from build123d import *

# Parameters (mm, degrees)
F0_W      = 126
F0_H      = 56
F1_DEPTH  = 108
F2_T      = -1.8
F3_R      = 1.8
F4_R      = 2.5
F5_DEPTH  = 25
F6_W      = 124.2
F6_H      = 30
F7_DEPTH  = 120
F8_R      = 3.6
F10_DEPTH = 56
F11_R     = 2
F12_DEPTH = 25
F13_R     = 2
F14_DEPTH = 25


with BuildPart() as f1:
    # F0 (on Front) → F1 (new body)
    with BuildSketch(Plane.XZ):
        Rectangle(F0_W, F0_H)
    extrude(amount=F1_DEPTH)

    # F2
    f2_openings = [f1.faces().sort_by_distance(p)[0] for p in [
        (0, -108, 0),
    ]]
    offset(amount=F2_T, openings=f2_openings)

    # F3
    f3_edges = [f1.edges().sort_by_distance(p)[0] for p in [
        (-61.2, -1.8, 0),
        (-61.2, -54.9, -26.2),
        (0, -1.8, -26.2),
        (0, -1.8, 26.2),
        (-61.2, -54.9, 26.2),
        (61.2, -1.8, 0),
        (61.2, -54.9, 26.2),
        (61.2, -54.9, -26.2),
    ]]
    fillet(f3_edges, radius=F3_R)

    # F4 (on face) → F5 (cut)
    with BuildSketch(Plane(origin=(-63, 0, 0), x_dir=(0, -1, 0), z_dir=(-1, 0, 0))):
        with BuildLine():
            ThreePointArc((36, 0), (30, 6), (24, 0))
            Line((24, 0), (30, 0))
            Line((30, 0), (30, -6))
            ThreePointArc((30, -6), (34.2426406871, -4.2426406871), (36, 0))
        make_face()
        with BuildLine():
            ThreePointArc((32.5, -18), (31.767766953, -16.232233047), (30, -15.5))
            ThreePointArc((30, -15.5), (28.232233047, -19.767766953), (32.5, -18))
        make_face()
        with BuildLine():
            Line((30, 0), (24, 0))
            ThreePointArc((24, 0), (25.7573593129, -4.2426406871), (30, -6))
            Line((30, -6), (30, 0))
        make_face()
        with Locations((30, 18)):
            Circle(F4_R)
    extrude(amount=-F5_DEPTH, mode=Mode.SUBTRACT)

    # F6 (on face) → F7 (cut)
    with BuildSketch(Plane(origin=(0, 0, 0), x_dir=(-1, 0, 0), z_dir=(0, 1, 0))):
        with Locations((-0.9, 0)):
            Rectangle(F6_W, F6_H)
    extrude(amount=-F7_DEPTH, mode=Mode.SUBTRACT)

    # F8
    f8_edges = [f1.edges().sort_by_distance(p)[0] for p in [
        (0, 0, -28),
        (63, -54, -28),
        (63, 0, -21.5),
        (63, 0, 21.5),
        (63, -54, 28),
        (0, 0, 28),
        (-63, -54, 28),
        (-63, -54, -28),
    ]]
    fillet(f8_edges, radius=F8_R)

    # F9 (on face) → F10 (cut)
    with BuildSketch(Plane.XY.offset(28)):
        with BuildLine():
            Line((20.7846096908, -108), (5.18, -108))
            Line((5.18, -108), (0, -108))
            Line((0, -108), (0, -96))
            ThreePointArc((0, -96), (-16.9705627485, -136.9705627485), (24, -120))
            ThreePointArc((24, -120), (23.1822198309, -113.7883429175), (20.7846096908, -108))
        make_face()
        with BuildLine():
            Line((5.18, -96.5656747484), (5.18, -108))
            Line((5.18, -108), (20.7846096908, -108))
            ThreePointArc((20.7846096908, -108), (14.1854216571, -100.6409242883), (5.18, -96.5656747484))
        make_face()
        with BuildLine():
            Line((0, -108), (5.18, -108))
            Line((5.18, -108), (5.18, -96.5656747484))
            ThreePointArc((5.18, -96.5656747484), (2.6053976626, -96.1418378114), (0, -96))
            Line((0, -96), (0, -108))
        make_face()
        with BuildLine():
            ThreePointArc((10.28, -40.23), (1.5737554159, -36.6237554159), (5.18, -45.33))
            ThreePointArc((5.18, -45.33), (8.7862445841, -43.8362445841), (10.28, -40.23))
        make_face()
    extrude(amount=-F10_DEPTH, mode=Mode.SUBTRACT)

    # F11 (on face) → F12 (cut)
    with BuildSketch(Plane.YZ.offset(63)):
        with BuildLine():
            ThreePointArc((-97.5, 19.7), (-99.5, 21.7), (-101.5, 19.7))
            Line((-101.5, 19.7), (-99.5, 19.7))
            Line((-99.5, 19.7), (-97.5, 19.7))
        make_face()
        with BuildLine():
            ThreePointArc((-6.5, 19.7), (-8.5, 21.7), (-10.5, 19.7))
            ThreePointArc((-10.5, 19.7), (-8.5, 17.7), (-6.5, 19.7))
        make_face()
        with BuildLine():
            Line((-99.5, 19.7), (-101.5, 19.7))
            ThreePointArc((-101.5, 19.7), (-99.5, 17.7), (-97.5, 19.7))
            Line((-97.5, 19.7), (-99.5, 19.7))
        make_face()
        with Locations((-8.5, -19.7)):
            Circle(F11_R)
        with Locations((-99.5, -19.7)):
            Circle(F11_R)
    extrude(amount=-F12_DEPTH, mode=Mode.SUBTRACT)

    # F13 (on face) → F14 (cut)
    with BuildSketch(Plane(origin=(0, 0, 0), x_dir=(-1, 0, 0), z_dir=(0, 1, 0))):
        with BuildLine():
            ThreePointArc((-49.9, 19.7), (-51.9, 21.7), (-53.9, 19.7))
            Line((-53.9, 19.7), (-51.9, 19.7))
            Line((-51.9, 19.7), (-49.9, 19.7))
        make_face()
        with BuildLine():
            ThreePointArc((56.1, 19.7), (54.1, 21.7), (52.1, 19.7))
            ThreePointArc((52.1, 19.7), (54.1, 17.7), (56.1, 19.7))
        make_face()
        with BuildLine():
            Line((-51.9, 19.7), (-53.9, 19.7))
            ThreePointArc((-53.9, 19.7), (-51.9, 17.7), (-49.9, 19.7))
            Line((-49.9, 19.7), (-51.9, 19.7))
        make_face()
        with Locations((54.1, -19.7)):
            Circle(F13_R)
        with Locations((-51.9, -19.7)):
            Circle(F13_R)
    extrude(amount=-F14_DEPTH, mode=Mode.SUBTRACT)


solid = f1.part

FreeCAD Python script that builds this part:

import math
import FreeCAD as App
import Part
import Sketcher
from FreeCAD import Vector


def edges_at(feature, points):
    """Names of the edges that pass closest to the given points."""
    edges = feature.Shape.Edges
    near = lambda p: min(range(len(edges)), key=lambda i: edges[i].distToShape(Part.Vertex(*p))[0])
    return sorted({f"Edge{near(p) + 1}" for p in points})


def faces_at(feature, points):
    """Names of the faces that lie closest to the given points."""
    faces = feature.Shape.Faces
    near = lambda p: min(range(len(faces)), key=lambda i: faces[i].distToShape(Part.Vertex(*p))[0])
    return sorted({f"Face{near(p) + 1}" for p in points})

doc = App.newDocument("Part")
body = doc.addObject("PartDesign::Body", "Body")

# Sketch on XZ plane
sketch1 = body.newObject("Sketcher::SketchObject", "Sketch")
sketch1.AttachmentSupport = (doc.getObject("XZ_Plane"), [""])
sketch1.MapMode = "FlatFace"
sketch1.addGeometry(Part.LineSegment(Vector(-63, 28, 0), Vector(-63, -28, 0)), False)
sketch1.addGeometry(Part.LineSegment(Vector(-63, -28, 0), Vector(63, -28, 0)), False)
sketch1.addGeometry(Part.LineSegment(Vector(63, -28, 0), Vector(63, 28, 0)), False)
sketch1.addGeometry(Part.LineSegment(Vector(63, 28, 0), Vector(-63, 28, 0)), False)
sketch1.addConstraint(Sketcher.Constraint("Coincident", 0, 2, 1, 1))
sketch1.addConstraint(Sketcher.Constraint("Coincident", 1, 2, 2, 1))
sketch1.addConstraint(Sketcher.Constraint("Coincident", 2, 2, 3, 1))
sketch1.addConstraint(Sketcher.Constraint("Coincident", 3, 2, 0, 1))
sketch1.addConstraint(Sketcher.Constraint("Vertical", 0))
sketch1.addConstraint(Sketcher.Constraint("Horizontal", 1))
sketch1.addConstraint(Sketcher.Constraint("Vertical", 2))
sketch1.addConstraint(Sketcher.Constraint("Horizontal", 3))
sketch1.addConstraint(Sketcher.Constraint("Symmetric", 0, 2, 2, 2, -1, 1))
sketch1.addConstraint(Sketcher.Constraint("DistanceX", 1, 1, 1, 2, 126.0))
sketch1.addConstraint(Sketcher.Constraint("DistanceY", 0, 2, 0, 1, 56.0))
pad1 = body.newObject("PartDesign::Pad", "Pad")
pad1.Profile = sketch1
pad1.Length = 108
doc.recompute()

thickness = body.newObject("PartDesign::Thickness", "Thickness")
thickness.Base = (pad1, faces_at(pad1, [(0, -108, 0)]))
thickness.Value = 1.8
thickness.Reversed = True
thickness.Join = "Arc"
doc.recompute()

fillet = body.newObject("PartDesign::Fillet", "Fillet")
fillet.Base = (thickness, edges_at(thickness, [
    (-61.2, -1.8, 0),
    (-61.2, -54.9, -26.2),
    (0, -1.8, -26.2),
    (0, -1.8, 26.2),
    (-61.2, -54.9, 26.2),
    (61.2, -1.8, 0),
    (61.2, -54.9, 26.2),
    (61.2, -54.9, -26.2),
]))
fillet.Radius = 1.8

# Sketch on YZ plane
sketch2 = body.newObject("Sketcher::SketchObject", "Sketch001")
sketch2.AttachmentSupport = (doc.getObject("YZ_Plane"), [""])
sketch2.MapMode = "FlatFace"
sketch2.AttachmentOffset = App.Placement(Vector(0, 0, -63), App.Rotation())
sketch2.addGeometry(Part.ArcOfCircle(Part.Circle(Vector(-30, 0, 0), Vector(0, 0, 1), 6), math.radians(0), math.radians(180)), False)
sketch2.addGeometry(Part.ArcOfCircle(Part.Circle(Vector(-30, 0, 0), Vector(0, 0, 1), 6), math.radians(-90), math.radians(0)), False)
sketch2.addGeometry(Part.ArcOfCircle(Part.Circle(Vector(-30, 0, 0), Vector(0, 0, 1), 6), math.radians(180), math.radians(270)), False)
sketch2.addGeometry(Part.ArcOfCircle(Part.Circle(Vector(-30, -18, 0), Vector(0, 0, 1), 2.5), math.radians(90), math.radians(180)), False)
sketch2.addGeometry(Part.ArcOfCircle(Part.Circle(Vector(-30, -18, 0), Vector(0, 0, 1), 2.5), math.radians(180), math.radians(450)), False)
sketch2.addGeometry(Part.Circle(Vector(-30, 18, 0), Vector(0, 0, 1), 2.5), False)
sketch2.addConstraint(Sketcher.Constraint("Tangent", 0, 1, 1, 2))
sketch2.addConstraint(Sketcher.Constraint("Tangent", 1, 1, 2, 2))
sketch2.addConstraint(Sketcher.Constraint("Tangent", 2, 1, 0, 2))
sketch2.addConstraint(Sketcher.Constraint("Tangent", 3, 1, 4, 2))
sketch2.addConstraint(Sketcher.Constraint("Coincident", 4, 1, 3, 2))
sketch2.addConstraint(Sketcher.Constraint("Equal", 4, 5))
sketch2.addConstraint(Sketcher.Constraint("Symmetric", 3, 3, 5, 3, -1))
sketch2.addConstraint(Sketcher.Constraint("PointOnObject", 0, 3, -1))
sketch2.addConstraint(Sketcher.Constraint("PointOnObject", 0, 1, -1))
sketch2.addConstraint(Sketcher.Constraint("PointOnObject", 2, 1, -1))
sketch2.addConstraint(Sketcher.Constraint("Horizontal", 3, 3, 4, 1))
sketch2.addConstraint(Sketcher.Constraint("Vertical", 2, 3, 3, 3))
sketch2.addConstraint(Sketcher.Constraint("Vertical", 5, 3, 1, 1))
sketch2.addConstraint(Sketcher.Constraint("Vertical", 1, 1, 3, 1))
sketch2.addConstraint(Sketcher.Constraint("Diameter", 5, 5.0))
sketch2.addConstraint(Sketcher.Constraint("Radius", 0, 6.0))
sketch2.addConstraint(Sketcher.Constraint("DistanceX", 0, 3, -1, 1, 30.0))
sketch2.addConstraint(Sketcher.Constraint("DistanceY", 3, 3, -1, 1, 18.0))
pocket1 = body.newObject("PartDesign::Pocket", "Pocket")
pocket1.Profile = sketch2
pocket1.Length = 25
pocket1.Reversed = True

# Sketch on XZ plane
sketch3 = body.newObject("Sketcher::SketchObject", "Sketch002")
sketch3.AttachmentSupport = (doc.getObject("XZ_Plane"), [""])
sketch3.MapMode = "FlatFace"
sketch3.addGeometry(Part.LineSegment(Vector(63, 15, 0), Vector(63, -15, 0)), False)
sketch3.addGeometry(Part.LineSegment(Vector(63, -15, 0), Vector(-61, -15, 0)), False)
sketch3.addGeometry(Part.LineSegment(Vector(-61, -15, 0), Vector(-61, 15, 0)), False)
sketch3.addGeometry(Part.LineSegment(Vector(-61, 15, 0), Vector(63, 15, 0)), False)
sketch3.addConstraint(Sketcher.Constraint("Coincident", 0, 2, 1, 1))
sketch3.addConstraint(Sketcher.Constraint("Coincident", 1, 2, 2, 1))
sketch3.addConstraint(Sketcher.Constraint("Coincident", 2, 2, 3, 1))
sketch3.addConstraint(Sketcher.Constraint("Coincident", 3, 2, 0, 1))
sketch3.addConstraint(Sketcher.Constraint("Vertical", 0))
sketch3.addConstraint(Sketcher.Constraint("Horizontal", 1))
sketch3.addConstraint(Sketcher.Constraint("Vertical", 2))
sketch3.addConstraint(Sketcher.Constraint("Horizontal", 3))
sketch3.addConstraint(Sketcher.Constraint("DistanceY", 0, 2, 0, 1, 30.0))
sketch3.addConstraint(Sketcher.Constraint("DistanceX", 1, 2, 1, 1, 124.2))
sketch3.addConstraint(Sketcher.Constraint("DistanceX", -1, 1, 0, 2, 63.0))
sketch3.addConstraint(Sketcher.Constraint("DistanceY", 0, 2, -1, 1, 15.0))
pocket2 = body.newObject("PartDesign::Pocket", "Pocket001")
pocket2.Profile = sketch3
pocket2.Length = 120
pocket2.Reversed = True
doc.recompute()

fillet2 = body.newObject("PartDesign::Fillet", "Fillet001")
fillet2.Base = (pocket2, edges_at(pocket2, [
    (0, 0, -28),
    (63, -54, -28),
    (63, 0, -21.5),
    (63, 0, 21.5),
    (63, -54, 28),
    (0, 0, 28),
    (-63, -54, 28),
    (-63, -54, -28),
]))
fillet2.Radius = 3.6

# Sketch on XY plane
sketch4 = body.newObject("Sketcher::SketchObject", "Sketch003")
sketch4.AttachmentSupport = (doc.getObject("XY_Plane"), [""])
sketch4.MapMode = "FlatFace"
sketch4.AttachmentOffset = App.Placement(Vector(0, 0, 28), App.Rotation())
sketch4.addGeometry(Part.ArcOfCircle(Part.Circle(Vector(0, -120, 0), Vector(0, 0, 1), 24), math.radians(90), math.radians(360)), False)
sketch4.addGeometry(Part.ArcOfCircle(Part.Circle(Vector(0, -120, 0), Vector(0, 0, 1), 24), math.radians(0), math.radians(30)), False)
sketch4.addGeometry(Part.ArcOfCircle(Part.Circle(Vector(0, -120, 0), Vector(0, 0, 1), 24), math.radians(30), math.radians(78)), False)
sketch4.addGeometry(Part.ArcOfCircle(Part.Circle(Vector(0, -120, 0), Vector(0, 0, 1), 24), math.radians(77.54), math.radians(90)), False)
sketch4.addGeometry(Part.ArcOfCircle(Part.Circle(Vector(5, -40, 0), Vector(0, 0, 1), 5), math.radians(0), math.radians(270)), False)
sketch4.addGeometry(Part.ArcOfCircle(Part.Circle(Vector(5, -40, 0), Vector(0, 0, 1), 5), math.radians(-90), math.radians(0)), False)
sketch4.addConstraint(Sketcher.Constraint("Tangent", 0, 2, 1, 1))
sketch4.addConstraint(Sketcher.Constraint("Tangent", 1, 2, 2, 1))
sketch4.addConstraint(Sketcher.Constraint("Tangent", 2, 2, 3, 1))
sketch4.addConstraint(Sketcher.Constraint("Tangent", 3, 2, 0, 1))
sketch4.addConstraint(Sketcher.Constraint("Tangent", 4, 1, 5, 2))
sketch4.addConstraint(Sketcher.Constraint("Coincident", 5, 1, 4, 2))
sketch4.addConstraint(Sketcher.Constraint("Equal", 0, 1))
sketch4.addConstraint(Sketcher.Constraint("PointOnObject", 0, 3, -2))
sketch4.addConstraint(Sketcher.Constraint("PointOnObject", 3, 2, -2))
sketch4.addConstraint(Sketcher.Constraint("Horizontal", 3, 3, 0, 2))
sketch4.addConstraint(Sketcher.Constraint("Horizontal", 5, 3, 4, 1))
sketch4.addConstraint(Sketcher.Constraint("Vertical", 5, 3, 2, 2))
sketch4.addConstraint(Sketcher.Constraint("Vertical", 2, 2, 5, 1))
sketch4.addConstraint(Sketcher.Constraint("Radius", 0, 24.0))
sketch4.addConstraint(Sketcher.Constraint("Radius", 4, 5.1))
sketch4.addConstraint(Sketcher.Constraint("DistanceY", 0, 3, -1, 1, 120.0))
sketch4.addConstraint(Sketcher.Constraint("DistanceY", 1, 2, -1, 1, 108.0))
sketch4.addConstraint(Sketcher.Constraint("DistanceX", -1, 1, 4, 3, 5.18))
sketch4.addConstraint(Sketcher.Constraint("DistanceY", 4, 3, -1, 1, 40.23))
pocket3 = body.newObject("PartDesign::Pocket", "Pocket002")
pocket3.Profile = sketch4
pocket3.Length = 56

# Sketch on YZ plane
sketch5 = body.newObject("Sketcher::SketchObject", "Sketch004")
sketch5.AttachmentSupport = (doc.getObject("YZ_Plane"), [""])
sketch5.MapMode = "FlatFace"
sketch5.AttachmentOffset = App.Placement(Vector(0, 0, 63), App.Rotation())
sketch5.addGeometry(Part.Circle(Vector(-99.5, 19.7, 0), Vector(0, 0, 1), 2), False)
sketch5.addGeometry(Part.Circle(Vector(-8.5, 19.7, 0), Vector(0, 0, 1), 2), False)
sketch5.addGeometry(Part.Circle(Vector(-8.5, -19.7, 0), Vector(0, 0, 1), 2), False)
sketch5.addGeometry(Part.Circle(Vector(-99.5, -19.7, 0), Vector(0, 0, 1), 2), False)
sketch5.addConstraint(Sketcher.Constraint("Equal", 0, 1))
sketch5.addConstraint(Sketcher.Constraint("Equal", 1, 2))
sketch5.addConstraint(Sketcher.Constraint("Equal", 2, 3))
sketch5.addConstraint(Sketcher.Constraint("Symmetric", 1, 3, 2, 3, -1))
sketch5.addConstraint(Sketcher.Constraint("Symmetric", 0, 3, 3, 3, -1))
sketch5.addConstraint(Sketcher.Constraint("Horizontal", 0, 3, 1, 3))
sketch5.addConstraint(Sketcher.Constraint("Diameter", 0, 4.0))
sketch5.addConstraint(Sketcher.Constraint("DistanceX", 0, 3, 1, 3, 91.0))
sketch5.addConstraint(Sketcher.Constraint("DistanceX", 0, 3, -1, 1, 99.5))
sketch5.addConstraint(Sketcher.Constraint("DistanceY", -1, 1, 0, 3, 19.7))
pocket4 = body.newObject("PartDesign::Pocket", "Pocket003")
pocket4.Profile = sketch5
pocket4.Length = 25

# Sketch on XZ plane
sketch6 = body.newObject("Sketcher::SketchObject", "Sketch005")
sketch6.AttachmentSupport = (doc.getObject("XZ_Plane"), [""])
sketch6.MapMode = "FlatFace"
sketch6.addGeometry(Part.Circle(Vector(51.9, 19.7, 0), Vector(0, 0, 1), 2), False)
sketch6.addGeometry(Part.Circle(Vector(-54.1, 19.7, 0), Vector(0, 0, 1), 2), False)
sketch6.addGeometry(Part.Circle(Vector(-54.1, -19.7, 0), Vector(0, 0, 1), 2), False)
sketch6.addGeometry(Part.Circle(Vector(51.9, -19.7, 0), Vector(0, 0, 1), 2), False)
sketch6.addConstraint(Sketcher.Constraint("Equal", 0, 1))
sketch6.addConstraint(Sketcher.Constraint("Equal", 1, 2))
sketch6.addConstraint(Sketcher.Constraint("Equal", 2, 3))
sketch6.addConstraint(Sketcher.Constraint("Symmetric", 1, 3, 2, 3, -1))
sketch6.addConstraint(Sketcher.Constraint("Symmetric", 0, 3, 3, 3, -1))
sketch6.addConstraint(Sketcher.Constraint("Horizontal", 0, 3, 1, 3))
sketch6.addConstraint(Sketcher.Constraint("Diameter", 0, 4.0))
sketch6.addConstraint(Sketcher.Constraint("DistanceX", 1, 3, 0, 3, 106.0))
sketch6.addConstraint(Sketcher.Constraint("DistanceX", -1, 1, 0, 3, 51.9))
sketch6.addConstraint(Sketcher.Constraint("DistanceY", -1, 1, 0, 3, 19.7))
pocket5 = body.newObject("PartDesign::Pocket", "Pocket004")
pocket5.Profile = sketch6
pocket5.Length = 25
pocket5.Reversed = True

doc.recompute()
